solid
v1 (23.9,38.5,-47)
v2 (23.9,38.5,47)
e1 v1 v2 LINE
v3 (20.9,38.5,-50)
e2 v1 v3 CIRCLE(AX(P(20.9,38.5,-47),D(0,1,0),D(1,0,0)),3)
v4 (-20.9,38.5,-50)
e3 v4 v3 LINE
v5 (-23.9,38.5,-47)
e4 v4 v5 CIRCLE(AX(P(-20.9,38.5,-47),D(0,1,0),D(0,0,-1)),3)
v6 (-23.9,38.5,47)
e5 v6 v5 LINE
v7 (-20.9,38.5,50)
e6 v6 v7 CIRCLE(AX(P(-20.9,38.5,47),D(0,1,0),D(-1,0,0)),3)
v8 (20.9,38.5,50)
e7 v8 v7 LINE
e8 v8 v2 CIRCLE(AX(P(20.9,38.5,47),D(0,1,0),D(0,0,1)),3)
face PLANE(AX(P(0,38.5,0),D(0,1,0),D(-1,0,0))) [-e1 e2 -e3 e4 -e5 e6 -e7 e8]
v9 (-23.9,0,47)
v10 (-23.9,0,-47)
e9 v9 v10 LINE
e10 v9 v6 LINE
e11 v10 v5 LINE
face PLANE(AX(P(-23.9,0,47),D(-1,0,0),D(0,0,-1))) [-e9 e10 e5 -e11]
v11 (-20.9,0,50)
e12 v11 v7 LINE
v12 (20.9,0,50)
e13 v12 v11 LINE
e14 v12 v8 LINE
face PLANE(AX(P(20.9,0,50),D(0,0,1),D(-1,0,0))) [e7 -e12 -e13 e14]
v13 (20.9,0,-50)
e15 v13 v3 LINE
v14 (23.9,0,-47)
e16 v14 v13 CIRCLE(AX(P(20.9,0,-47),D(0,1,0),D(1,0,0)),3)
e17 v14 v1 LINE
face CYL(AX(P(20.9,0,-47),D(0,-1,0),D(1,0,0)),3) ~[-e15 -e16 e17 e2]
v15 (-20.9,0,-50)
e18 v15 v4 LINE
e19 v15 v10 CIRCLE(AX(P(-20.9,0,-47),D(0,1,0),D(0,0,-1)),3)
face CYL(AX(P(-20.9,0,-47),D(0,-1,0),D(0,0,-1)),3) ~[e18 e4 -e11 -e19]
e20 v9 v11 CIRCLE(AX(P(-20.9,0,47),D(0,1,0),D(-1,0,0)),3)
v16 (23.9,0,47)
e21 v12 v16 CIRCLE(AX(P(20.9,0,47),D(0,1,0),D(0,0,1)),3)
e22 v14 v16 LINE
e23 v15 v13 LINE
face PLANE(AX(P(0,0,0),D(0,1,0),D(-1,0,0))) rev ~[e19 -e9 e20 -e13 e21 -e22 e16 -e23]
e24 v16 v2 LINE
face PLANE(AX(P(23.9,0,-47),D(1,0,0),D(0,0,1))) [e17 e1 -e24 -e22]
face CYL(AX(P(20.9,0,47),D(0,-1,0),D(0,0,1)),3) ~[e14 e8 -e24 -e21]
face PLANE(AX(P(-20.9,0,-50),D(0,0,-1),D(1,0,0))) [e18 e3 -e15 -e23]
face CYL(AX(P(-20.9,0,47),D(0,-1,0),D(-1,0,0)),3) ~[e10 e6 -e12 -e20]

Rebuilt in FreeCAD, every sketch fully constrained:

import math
import FreeCAD as App
import Part
import Sketcher
Q = App.Units.Quantity

doc = App.newDocument("Part")
body = doc.addObject("PartDesign::Body", "Body")

# Sketch on XZ plane
sketch1 = doc.addObject("Sketcher::SketchObject", "Sketch")
body.addObject(sketch1)
sketch1.AttachmentSupport = (doc.XZ_Plane, [""])
sketch1.MapMode = "FlatFace"
sketch1.addGeometry([
    Part.LineSegment(App.Vector(-20.9, 50, 0), App.Vector(20.9, 50, 0)),  # 0
    Part.ArcOfCircle(Part.Circle(App.Vector(20.9, 47, 0), App.Vector(0, 0, 1), 3), math.radians(0), math.radians(90)),  # 1
    Part.LineSegment(App.Vector(23.9, 47, 0), App.Vector(23.9, -47, 0)),  # 2
    Part.ArcOfCircle(Part.Circle(App.Vector(20.9, -47, 0), App.Vector(0, 0, 1), 3), math.radians(-90), math.radians(0)),  # 3
    Part.LineSegment(App.Vector(20.9, -50, 0), App.Vector(-20.9, -50, 0)),  # 4
    Part.ArcOfCircle(Part.Circle(App.Vector(-20.9, -47, 0), App.Vector(0, 0, 1), 3), math.radians(180), math.radians(270)),  # 5
    Part.LineSegment(App.Vector(-23.9, -47, 0), App.Vector(-23.9, 47, 0)),  # 6
    Part.ArcOfCircle(Part.Circle(App.Vector(-20.9, 47, 0), App.Vector(0, 0, 1), 3), math.radians(90), math.radians(180)),  # 7
], False)
sketch1.addConstraint([
    Sketcher.Constraint("Tangent", 0, 2, 1, 2),
    Sketcher.Constraint("Tangent", 1, 1, 2, 1),
    Sketcher.Constraint("Tangent", 2, 2, 3, 2),
    Sketcher.Constraint("Tangent", 3, 1, 4, 1),
    Sketcher.Constraint("Tangent", 4, 2, 5, 2),
    Sketcher.Constraint("Tangent", 5, 1, 6, 1),
    Sketcher.Constraint("Tangent", 6, 2, 7, 2),
    Sketcher.Constraint("Tangent", 7, 1, 0, 1),
    Sketcher.Constraint("Horizontal", 0),
    Sketcher.Constraint("Vertical", 2),
    Sketcher.Constraint("Horizontal", 4),
    Sketcher.Constraint("Vertical", 6),
    Sketcher.Constraint("Equal", 1, 3),
    Sketcher.Constraint("Equal", 3, 5),
    Sketcher.Constraint("Equal", 5, 7),
    Sketcher.Constraint("Symmetric", 1, 3, 5, 3, -1, 1),
    Sketcher.Constraint("Radius", 1, Q("3 mm")),
    Sketcher.Constraint("DistanceX", 5, 1, 2, 2, Q("47.8 mm")),
    Sketcher.Constraint("DistanceY", 2, 2, 2, 1, Q("94 mm")),
])
pad1 = doc.addObject("PartDesign::Pad", "Pad")
body.addObject(pad1)
pad1.Profile = sketch1
pad1.Length = 38.5
pad1.Reversed = True

doc.recompute()
